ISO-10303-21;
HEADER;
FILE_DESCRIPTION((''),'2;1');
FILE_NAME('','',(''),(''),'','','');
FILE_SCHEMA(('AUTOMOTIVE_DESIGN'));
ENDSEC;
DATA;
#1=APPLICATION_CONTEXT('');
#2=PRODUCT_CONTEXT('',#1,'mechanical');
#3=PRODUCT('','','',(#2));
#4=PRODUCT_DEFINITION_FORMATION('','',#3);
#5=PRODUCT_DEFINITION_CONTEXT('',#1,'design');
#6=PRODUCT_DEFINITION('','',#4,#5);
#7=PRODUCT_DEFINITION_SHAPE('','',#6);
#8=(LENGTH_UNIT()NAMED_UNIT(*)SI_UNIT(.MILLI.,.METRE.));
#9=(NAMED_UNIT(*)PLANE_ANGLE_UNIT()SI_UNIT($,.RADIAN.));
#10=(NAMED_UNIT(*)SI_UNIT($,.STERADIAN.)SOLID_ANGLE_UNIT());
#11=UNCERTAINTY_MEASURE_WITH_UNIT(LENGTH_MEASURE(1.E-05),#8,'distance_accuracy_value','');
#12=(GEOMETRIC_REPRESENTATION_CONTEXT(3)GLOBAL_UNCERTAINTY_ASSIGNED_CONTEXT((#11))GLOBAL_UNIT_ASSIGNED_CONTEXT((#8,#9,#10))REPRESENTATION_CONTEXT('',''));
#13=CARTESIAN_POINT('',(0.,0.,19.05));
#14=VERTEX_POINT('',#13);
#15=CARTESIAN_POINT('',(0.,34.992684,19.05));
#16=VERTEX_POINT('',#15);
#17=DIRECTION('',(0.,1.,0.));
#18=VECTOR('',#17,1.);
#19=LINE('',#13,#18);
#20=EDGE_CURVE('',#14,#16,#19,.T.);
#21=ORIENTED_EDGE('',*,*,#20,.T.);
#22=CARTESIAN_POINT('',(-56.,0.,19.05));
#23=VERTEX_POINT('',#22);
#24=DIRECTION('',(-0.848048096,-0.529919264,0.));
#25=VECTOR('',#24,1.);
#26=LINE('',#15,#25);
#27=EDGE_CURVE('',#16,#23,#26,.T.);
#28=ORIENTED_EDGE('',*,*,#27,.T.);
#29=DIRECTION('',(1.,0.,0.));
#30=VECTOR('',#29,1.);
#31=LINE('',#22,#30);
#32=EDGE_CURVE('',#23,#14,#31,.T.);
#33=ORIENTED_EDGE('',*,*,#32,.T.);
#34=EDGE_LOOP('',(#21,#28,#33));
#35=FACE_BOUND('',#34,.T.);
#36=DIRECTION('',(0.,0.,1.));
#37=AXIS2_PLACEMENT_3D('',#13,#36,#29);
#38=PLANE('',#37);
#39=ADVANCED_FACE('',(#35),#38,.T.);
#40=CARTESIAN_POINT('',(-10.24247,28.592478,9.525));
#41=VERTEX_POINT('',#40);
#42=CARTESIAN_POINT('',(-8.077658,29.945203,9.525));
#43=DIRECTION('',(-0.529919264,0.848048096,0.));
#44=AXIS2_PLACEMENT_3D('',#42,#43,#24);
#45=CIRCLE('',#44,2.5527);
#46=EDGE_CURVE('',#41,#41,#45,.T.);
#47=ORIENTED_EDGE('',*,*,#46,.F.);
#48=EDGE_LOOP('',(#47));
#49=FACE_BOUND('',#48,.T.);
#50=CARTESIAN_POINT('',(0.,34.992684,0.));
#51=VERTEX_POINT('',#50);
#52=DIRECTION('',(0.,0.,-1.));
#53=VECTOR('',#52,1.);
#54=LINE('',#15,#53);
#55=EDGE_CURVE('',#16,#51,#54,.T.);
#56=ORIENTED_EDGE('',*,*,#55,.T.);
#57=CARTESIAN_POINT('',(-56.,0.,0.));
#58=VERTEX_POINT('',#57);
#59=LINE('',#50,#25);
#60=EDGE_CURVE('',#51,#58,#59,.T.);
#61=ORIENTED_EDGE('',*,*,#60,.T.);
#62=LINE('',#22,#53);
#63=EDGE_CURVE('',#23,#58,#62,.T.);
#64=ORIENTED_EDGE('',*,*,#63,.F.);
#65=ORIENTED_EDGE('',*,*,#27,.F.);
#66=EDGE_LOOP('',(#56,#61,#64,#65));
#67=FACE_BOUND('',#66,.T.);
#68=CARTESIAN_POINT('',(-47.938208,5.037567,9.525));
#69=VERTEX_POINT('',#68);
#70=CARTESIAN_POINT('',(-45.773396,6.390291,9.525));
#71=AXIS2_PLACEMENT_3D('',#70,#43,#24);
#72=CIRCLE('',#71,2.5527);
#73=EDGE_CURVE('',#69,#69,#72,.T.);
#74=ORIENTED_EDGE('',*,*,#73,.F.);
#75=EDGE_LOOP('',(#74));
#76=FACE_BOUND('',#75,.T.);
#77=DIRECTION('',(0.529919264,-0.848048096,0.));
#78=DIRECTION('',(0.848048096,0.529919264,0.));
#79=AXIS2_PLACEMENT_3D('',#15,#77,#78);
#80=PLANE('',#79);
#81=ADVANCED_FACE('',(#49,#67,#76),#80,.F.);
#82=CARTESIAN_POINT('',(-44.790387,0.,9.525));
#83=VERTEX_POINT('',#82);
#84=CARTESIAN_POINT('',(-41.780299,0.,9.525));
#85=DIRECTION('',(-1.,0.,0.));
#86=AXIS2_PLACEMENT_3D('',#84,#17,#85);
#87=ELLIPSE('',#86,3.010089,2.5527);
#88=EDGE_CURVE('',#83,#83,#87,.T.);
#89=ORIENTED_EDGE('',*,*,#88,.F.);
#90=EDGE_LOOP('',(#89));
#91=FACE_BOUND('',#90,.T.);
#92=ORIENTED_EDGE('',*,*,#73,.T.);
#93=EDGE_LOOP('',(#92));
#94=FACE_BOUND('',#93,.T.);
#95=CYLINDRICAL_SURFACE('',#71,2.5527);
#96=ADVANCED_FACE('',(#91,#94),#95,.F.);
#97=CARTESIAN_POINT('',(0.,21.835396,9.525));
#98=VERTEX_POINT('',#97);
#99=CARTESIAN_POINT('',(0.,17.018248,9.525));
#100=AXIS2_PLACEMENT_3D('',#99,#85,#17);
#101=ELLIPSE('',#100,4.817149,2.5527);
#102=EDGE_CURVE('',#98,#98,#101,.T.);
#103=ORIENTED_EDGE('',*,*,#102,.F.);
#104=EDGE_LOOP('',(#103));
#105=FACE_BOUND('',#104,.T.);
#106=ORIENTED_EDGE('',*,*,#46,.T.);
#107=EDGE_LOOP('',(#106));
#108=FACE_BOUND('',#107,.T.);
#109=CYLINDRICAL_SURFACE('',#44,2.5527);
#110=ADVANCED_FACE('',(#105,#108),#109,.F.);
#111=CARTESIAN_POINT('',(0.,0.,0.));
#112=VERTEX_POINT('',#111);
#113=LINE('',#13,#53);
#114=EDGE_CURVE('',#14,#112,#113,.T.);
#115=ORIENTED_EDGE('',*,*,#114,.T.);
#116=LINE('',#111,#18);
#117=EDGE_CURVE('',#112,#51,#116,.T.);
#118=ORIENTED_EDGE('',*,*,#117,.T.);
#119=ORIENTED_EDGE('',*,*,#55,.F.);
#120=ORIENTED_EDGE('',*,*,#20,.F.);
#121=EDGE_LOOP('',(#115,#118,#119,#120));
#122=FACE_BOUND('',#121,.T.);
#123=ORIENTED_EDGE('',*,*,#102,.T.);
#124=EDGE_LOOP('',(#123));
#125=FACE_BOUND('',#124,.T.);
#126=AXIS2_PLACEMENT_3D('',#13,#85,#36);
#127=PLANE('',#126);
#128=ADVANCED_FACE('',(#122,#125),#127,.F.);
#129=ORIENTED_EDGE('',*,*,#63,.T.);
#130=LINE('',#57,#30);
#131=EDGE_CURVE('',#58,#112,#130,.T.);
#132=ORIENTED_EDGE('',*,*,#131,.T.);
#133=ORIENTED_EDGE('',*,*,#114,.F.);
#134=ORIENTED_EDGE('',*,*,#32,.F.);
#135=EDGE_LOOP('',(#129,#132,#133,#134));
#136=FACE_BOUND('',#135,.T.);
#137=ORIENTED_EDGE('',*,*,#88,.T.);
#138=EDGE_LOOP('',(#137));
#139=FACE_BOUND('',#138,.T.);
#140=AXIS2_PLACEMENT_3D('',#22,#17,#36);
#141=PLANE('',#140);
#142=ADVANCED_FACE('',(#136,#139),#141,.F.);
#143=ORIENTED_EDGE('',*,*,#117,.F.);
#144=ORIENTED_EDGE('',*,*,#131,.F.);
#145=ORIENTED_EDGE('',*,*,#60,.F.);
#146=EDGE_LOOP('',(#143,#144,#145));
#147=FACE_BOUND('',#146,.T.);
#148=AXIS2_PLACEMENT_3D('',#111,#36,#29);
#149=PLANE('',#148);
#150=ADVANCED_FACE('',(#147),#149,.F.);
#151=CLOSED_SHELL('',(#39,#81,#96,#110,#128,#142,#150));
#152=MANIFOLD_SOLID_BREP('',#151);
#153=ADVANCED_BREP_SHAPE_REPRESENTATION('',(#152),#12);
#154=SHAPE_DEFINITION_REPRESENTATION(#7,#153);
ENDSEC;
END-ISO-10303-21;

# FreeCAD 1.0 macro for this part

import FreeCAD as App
import Part
import Sketcher
Q = App.Units.Quantity

doc = App.newDocument("Part")
params = doc.addObject("Spreadsheet::Sheet", "Params")
for row, (alias, value) in enumerate([
    ("pad1_length", "0.75 in"),
    ("sketch2_diameter", "0.201 in"),
    ("hole_diameter", "0.201 in"),
    ("hole_depth", "1 in"),
], start=1):
    params.set(f"A{row}", alias)
    params.set(f"B{row}", "=" + value)
    params.setAlias(f"B{row}", alias)

body = doc.addObject("PartDesign::Body", "Body")

sketch1 = body.newObject("Sketcher::SketchObject", "Sketch")
sketch1.AttachmentSupport = (doc.getObject("XY_Plane"), [""])
sketch1.MapMode = "FlatFace"
sketch1.addGeometry(Part.LineSegment(App.Vector(0, 0, 0), App.Vector(0, 35, 0)), False)
sketch1.addGeometry(Part.LineSegment(App.Vector(0, 35, 0), App.Vector(-56, 0, 0)), False)
sketch1.addGeometry(Part.LineSegment(App.Vector(-56, 0, 0), App.Vector(0, 0, 0)), False)
sketch1.addConstraint(Sketcher.Constraint("Coincident", 0, 2, 1, 1))
sketch1.addConstraint(Sketcher.Constraint("Coincident", 1, 2, 2, 1))
sketch1.addConstraint(Sketcher.Constraint("Coincident", 2, 2, 0, 1))
sketch1.addConstraint(Sketcher.Constraint("Vertical", 0))
sketch1.addConstraint(Sketcher.Constraint("Horizontal", 2))
sketch1.addConstraint(Sketcher.Constraint("Coincident", 2, 2, -1, 1))
sketch1.addConstraint(Sketcher.Constraint("Angle", 1, Q("-148 deg")))
sketch1.addConstraint(Sketcher.Constraint("DistanceX", 2, 1, 2, 2, 56.0))
pad1 = body.newObject("PartDesign::Pad", "Pad")
pad1.Profile = sketch1
pad1.setExpression("Length", "Params.pad1_length")

sketch2 = body.newObject("Sketcher::SketchObject", "Sketch001")
sketch2.Placement = App.Placement(App.Vector(-15.725608, 25.166233, 0), App.Rotation(App.Vector(0.848048096, 0.529919264, 0), App.Vector(0, 0, -0.999999999), App.Vector(-0.529919264, 0.848048096, 0), "ZXY"))
sketch2.addGeometry(Part.Circle(App.Vector(-35.4, -9.5, 0), App.Vector(0, 0, 1), 2.6), False)
sketch2.addGeometry(Part.Circle(App.Vector(9, -9.5, 0), App.Vector(0, 0, 1), 2.6), False)
sketch2.addConstraint(Sketcher.Constraint("Equal", 0, 1))
sketch2.addConstraint(Sketcher.Constraint("Horizontal", 0, 3, 1, 3))
sketch2.addConstraint(Sketcher.Constraint("Diameter", 0, Q("0.201 in")))
sketch2.addConstraint(Sketcher.Constraint("DistanceX", 0, 3, 1, 3, Q("1.75 in")))
sketch2.addConstraint(Sketcher.Constraint("DistanceY", 0, 3, -1, 1, Q("0.375 in")))
sketch2.addConstraint(Sketcher.Constraint("DistanceX", 0, 3, -1, 1, 35.431703))
sketch2.setExpression("Constraints[2]", "Params.sketch2_diameter")
doc.recompute()
hole = body.newObject("PartDesign::Hole", "Hole")
hole.Profile = sketch2
hole.ThreadType = "None"
hole.setExpression("Diameter", "Params.hole_diameter")
hole.DepthType = "Dimension"
hole.setExpression("Depth", "Params.hole_depth")
hole.DrillPoint = "Flat"

doc.recompute()
